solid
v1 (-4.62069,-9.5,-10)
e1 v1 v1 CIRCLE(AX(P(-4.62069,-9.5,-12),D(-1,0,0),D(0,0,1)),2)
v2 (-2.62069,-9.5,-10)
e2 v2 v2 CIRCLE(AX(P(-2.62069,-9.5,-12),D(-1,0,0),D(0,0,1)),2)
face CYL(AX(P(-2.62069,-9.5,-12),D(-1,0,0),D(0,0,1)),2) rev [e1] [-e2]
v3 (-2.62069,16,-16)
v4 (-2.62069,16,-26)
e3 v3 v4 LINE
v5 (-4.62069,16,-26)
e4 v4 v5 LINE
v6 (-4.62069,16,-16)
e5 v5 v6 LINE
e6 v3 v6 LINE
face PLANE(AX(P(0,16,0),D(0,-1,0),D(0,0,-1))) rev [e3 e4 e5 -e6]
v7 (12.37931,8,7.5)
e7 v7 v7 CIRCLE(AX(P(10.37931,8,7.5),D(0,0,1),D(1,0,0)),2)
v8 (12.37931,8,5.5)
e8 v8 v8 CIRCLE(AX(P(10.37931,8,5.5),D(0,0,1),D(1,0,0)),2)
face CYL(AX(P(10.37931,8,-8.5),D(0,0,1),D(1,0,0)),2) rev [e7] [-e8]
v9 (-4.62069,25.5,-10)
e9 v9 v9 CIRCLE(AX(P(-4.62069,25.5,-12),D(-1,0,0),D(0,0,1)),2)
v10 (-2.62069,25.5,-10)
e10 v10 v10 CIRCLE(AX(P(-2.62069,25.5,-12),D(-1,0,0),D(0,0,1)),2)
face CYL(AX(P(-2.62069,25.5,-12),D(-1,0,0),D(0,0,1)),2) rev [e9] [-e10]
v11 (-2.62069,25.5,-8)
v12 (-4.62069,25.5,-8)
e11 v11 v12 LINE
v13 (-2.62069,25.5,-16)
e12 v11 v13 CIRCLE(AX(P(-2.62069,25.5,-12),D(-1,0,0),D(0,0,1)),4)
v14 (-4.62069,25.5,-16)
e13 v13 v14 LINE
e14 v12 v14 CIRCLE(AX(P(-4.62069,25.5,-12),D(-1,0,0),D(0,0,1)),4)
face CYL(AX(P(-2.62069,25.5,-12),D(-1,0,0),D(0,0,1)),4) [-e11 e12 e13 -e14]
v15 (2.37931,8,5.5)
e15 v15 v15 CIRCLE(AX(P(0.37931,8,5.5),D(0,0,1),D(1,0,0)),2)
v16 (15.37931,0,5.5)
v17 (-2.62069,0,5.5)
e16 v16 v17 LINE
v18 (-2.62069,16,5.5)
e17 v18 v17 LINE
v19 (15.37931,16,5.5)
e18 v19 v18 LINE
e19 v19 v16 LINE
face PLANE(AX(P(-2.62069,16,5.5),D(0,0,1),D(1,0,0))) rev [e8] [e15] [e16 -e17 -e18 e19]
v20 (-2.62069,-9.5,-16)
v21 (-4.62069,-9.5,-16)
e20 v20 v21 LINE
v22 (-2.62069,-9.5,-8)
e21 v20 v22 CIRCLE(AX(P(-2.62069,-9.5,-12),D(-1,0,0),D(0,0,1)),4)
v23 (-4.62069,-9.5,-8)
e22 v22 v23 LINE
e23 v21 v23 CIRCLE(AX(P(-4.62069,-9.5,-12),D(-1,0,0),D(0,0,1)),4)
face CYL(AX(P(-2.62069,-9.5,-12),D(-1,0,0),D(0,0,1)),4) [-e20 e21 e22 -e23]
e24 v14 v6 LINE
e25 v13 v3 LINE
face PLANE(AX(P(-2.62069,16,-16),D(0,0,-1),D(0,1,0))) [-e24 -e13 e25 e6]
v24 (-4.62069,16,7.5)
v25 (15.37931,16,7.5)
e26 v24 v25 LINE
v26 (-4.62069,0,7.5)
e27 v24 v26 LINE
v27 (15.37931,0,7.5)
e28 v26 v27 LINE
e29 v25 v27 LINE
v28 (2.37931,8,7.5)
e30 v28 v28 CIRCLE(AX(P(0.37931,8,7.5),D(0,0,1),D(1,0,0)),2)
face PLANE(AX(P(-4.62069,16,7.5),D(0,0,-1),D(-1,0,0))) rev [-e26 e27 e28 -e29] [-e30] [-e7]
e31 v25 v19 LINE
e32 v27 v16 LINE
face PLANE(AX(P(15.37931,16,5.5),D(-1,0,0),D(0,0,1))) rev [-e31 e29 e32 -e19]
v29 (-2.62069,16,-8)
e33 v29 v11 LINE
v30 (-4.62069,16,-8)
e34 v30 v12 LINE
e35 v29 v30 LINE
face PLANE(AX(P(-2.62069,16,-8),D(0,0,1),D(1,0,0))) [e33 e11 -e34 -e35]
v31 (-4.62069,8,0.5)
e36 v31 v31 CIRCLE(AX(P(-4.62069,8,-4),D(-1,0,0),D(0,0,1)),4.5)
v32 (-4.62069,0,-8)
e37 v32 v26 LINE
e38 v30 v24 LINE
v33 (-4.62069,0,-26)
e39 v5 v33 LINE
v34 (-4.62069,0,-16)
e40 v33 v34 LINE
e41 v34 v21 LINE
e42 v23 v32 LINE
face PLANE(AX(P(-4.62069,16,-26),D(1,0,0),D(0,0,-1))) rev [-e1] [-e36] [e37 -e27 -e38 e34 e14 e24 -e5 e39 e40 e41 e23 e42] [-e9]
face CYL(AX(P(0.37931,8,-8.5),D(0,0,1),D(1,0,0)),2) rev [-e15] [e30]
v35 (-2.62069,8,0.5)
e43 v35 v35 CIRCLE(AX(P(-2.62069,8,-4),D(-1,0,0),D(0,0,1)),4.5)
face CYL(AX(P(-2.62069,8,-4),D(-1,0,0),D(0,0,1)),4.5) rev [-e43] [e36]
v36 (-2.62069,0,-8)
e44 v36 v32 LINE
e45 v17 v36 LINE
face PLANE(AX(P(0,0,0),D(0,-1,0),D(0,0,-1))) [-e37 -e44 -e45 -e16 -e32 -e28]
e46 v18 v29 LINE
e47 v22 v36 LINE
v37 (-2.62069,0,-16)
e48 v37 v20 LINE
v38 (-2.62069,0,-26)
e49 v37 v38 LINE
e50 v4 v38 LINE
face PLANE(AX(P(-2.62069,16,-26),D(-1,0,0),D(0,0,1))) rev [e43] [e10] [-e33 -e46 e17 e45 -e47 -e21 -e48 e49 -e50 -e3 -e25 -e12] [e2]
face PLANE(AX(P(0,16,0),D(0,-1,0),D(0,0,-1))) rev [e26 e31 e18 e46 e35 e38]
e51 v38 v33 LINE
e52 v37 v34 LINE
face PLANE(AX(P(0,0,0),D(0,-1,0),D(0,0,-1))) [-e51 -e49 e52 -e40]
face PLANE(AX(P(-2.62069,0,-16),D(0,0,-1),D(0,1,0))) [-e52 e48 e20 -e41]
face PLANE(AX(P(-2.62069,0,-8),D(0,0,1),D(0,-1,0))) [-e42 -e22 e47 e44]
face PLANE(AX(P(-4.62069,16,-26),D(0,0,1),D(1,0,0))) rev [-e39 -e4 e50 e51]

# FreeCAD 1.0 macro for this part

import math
import FreeCAD as App
import Part
import Sketcher

V = App.Vector

doc = App.newDocument("Part")
body = doc.addObject("PartDesign::Body", "Body")

sketch1 = body.newObject("Sketcher::SketchObject", "Sketch")
sketch1.AttachmentSupport = (doc.getObject("XZ_Plane"), [""])
sketch1.MapMode = "FlatFace"
sketch1.addGeometry(Part.LineSegment(V(-4.62069, -26, 0), V(-4.62069, 7.5, 0)), False)
sketch1.addGeometry(Part.LineSegment(V(-4.62069, 7.5, 0), V(15.37931, 7.5, 0)), False)
sketch1.addGeometry(Part.LineSegment(V(15.37931, 7.5, 0), V(15.37931, 5.5, 0)), False)
sketch1.addGeometry(Part.LineSegment(V(15.37931, 5.5, 0), V(-2.62069, 5.5, 0)), False)
sketch1.addGeometry(Part.LineSegment(V(-2.62069, 5.5, 0), V(-2.62069, -26, 0)), False)
sketch1.addGeometry(Part.LineSegment(V(-2.62069, -26, 0), V(-4.62069, -26, 0)), False)
sketch1.addConstraint(Sketcher.Constraint("Coincident", 0, 2, 1, 1))
sketch1.addConstraint(Sketcher.Constraint("Coincident", 1, 2, 2, 1))
sketch1.addConstraint(Sketcher.Constraint("Coincident", 2, 2, 3, 1))
sketch1.addConstraint(Sketcher.Constraint("Coincident", 3, 2, 4, 1))
sketch1.addConstraint(Sketcher.Constraint("Coincident", 4, 2, 5, 1))
sketch1.addConstraint(Sketcher.Constraint("Coincident", 5, 2, 0, 1))
sketch1.addConstraint(Sketcher.Constraint("Vertical", 0))
sketch1.addConstraint(Sketcher.Constraint("Horizontal", 1))
sketch1.addConstraint(Sketcher.Constraint("Vertical", 2))
sketch1.addConstraint(Sketcher.Constraint("Horizontal", 3))
sketch1.addConstraint(Sketcher.Constraint("Vertical", 4))
sketch1.addConstraint(Sketcher.Constraint("Horizontal", 5))
sketch1.addConstraint(Sketcher.Constraint("Equal", 5, 2))
sketch1.addConstraint(Sketcher.Constraint("DistanceX", 1, 1, 1, 2, 20.0))
sketch1.addConstraint(Sketcher.Constraint("DistanceX", 3, 2, 3, 1, 18.0))
sketch1.addConstraint(Sketcher.Constraint("DistanceY", 0, 1, 0, 2, 33.5))
sketch1.addConstraint(Sketcher.Constraint("DistanceY", 4, 2, -1, 1, 26.0))
sketch1.addConstraint(Sketcher.Constraint("DistanceX", 0, 2, -1, 1, 4.62069))
pad1 = body.newObject("PartDesign::Pad", "Pad")
pad1.Profile = sketch1
pad1.Length = 16
pad1.Reversed = True

sketch2 = body.newObject("Sketcher::SketchObject", "Sketch001")
sketch2.AttachmentSupport = (doc.getObject("XY_Plane"), [""])
sketch2.MapMode = "FlatFace"
sketch2.AttachmentOffset = App.Placement(V(0, 0, 7.5), App.Rotation())
sketch2.addGeometry(Part.Circle(V(0.37931, 8, 0), V(0, 0, 1), 2), False)
sketch2.addGeometry(Part.Circle(V(10.37931, 8, 0), V(0, 0, 1), 2), False)
sketch2.addConstraint(Sketcher.Constraint("Equal", 0, 1))
sketch2.addConstraint(Sketcher.Constraint("Horizontal", 0, 3, 1, 3))
sketch2.addConstraint(Sketcher.Constraint("Diameter", 0, 4.0))
sketch2.addConstraint(Sketcher.Constraint("DistanceY", -1, 1, 0, 3, 8.0))
sketch2.addConstraint(Sketcher.Constraint("DistanceX", 0, 3, 1, 3, 10.0))
sketch2.addConstraint(Sketcher.Constraint("DistanceX", -1, 1, 0, 3, 0.37931))
pocket1 = body.newObject("PartDesign::Pocket", "Pocket")
pocket1.Profile = sketch2
pocket1.Length = 16

sketch3 = body.newObject("Sketcher::SketchObject", "Sketch002")
sketch3.AttachmentSupport = (doc.getObject("YZ_Plane"), [""])
sketch3.MapMode = "FlatFace"
sketch3.AttachmentOffset = App.Placement(V(0, 0, -4.62069), App.Rotation())
sketch3.addGeometry(Part.LineSegment(V(16, -16, 0), V(16, -8, 0)), False)
sketch3.addGeometry(Part.LineSegment(V(16, -8, 0), V(25.5, -8, 0)), False)
sketch3.addGeometry(Part.ArcOfCircle(Part.Circle(V(25.5, -12, 0), V(0, 0, 1), 4), math.radians(-90), math.radians(90)), False)
sketch3.addGeometry(Part.LineSegment(V(25.5, -16, 0), V(16, -16, 0)), False)
sketch3.addGeometry(Part.Circle(V(25.5, -12, 0), V(0, 0, 1), 2), False)
sketch3.addGeometry(Part.LineSegment(V(0, -8, 0), V(0, -16, 0)), False)
sketch3.addGeometry(Part.LineSegment(V(0, -16, 0), V(-9.5, -16, 0)), False)
sketch3.addGeometry(Part.ArcOfCircle(Part.Circle(V(-9.5, -12, 0), V(0, 0, 1), 4), math.radians(90), math.radians(270)), False)
sketch3.addGeometry(Part.LineSegment(V(-9.5, -8, 0), V(0, -8, 0)), False)
sketch3.addGeometry(Part.Circle(V(-9.5, -12, 0), V(0, 0, 1), 2), False)
sketch3.addConstraint(Sketcher.Constraint("Coincident", 0, 2, 1, 1))
sketch3.addConstraint(Sketcher.Constraint("Tangent", 1, 2, 2, 2))
sketch3.addConstraint(Sketcher.Constraint("Tangent", 2, 1, 3, 1))
sketch3.addConstraint(Sketcher.Constraint("Coincident", 3, 2, 0, 1))
sketch3.addConstraint(Sketcher.Constraint("Coincident", 5, 2, 6, 1))
sketch3.addConstraint(Sketcher.Constraint("Tangent", 6, 2, 7, 2))
sketch3.addConstraint(Sketcher.Constraint("Tangent", 7, 1, 8, 1))
sketch3.addConstraint(Sketcher.Constraint("Coincident", 8, 2, 5, 1))
sketch3.addConstraint(Sketcher.Constraint("Vertical", 0))
sketch3.addConstraint(Sketcher.Constraint("Horizontal", 1))
sketch3.addConstraint(Sketcher.Constraint("Horizontal", 3))
sketch3.addConstraint(Sketcher.Constraint("Vertical", 5))
sketch3.addConstraint(Sketcher.Constraint("Horizontal", 6))
sketch3.addConstraint(Sketcher.Constraint("Horizontal", 8))
sketch3.addConstraint(Sketcher.Constraint("Coincident", 4, 3, 2, 3))
sketch3.addConstraint(Sketcher.Constraint("Coincident", 9, 3, 7, 3))
sketch3.addConstraint(Sketcher.Constraint("Equal", 2, 7))
sketch3.addConstraint(Sketcher.Constraint("Equal", 4, 9))
sketch3.addConstraint(Sketcher.Constraint("PointOnObject", 5, 2, -2))
sketch3.addConstraint(Sketcher.Constraint("Horizontal", 4, 3, 7, 3))
sketch3.addConstraint(Sketcher.Constraint("Equal", 3, 6))
sketch3.addConstraint(Sketcher.Constraint("Diameter", 4, 4.0))
sketch3.addConstraint(Sketcher.Constraint("Radius", 2, 4.0))
sketch3.addConstraint(Sketcher.Constraint("DistanceX", 1, 1, 1, 2, 9.5))
sketch3.addConstraint(Sketcher.Constraint("DistanceY", 2, 3, -1, 1, 12.0))
sketch3.addConstraint(Sketcher.Constraint("DistanceX", -1, 1, 0, 2, 16.0))
pad2 = body.newObject("PartDesign::Pad", "Pad001")
pad2.Profile = sketch3
pad2.Length = 2

sketch4 = body.newObject("Sketcher::SketchObject", "Sketch003")
sketch4.AttachmentSupport = (doc.getObject("YZ_Plane"), [""])
sketch4.MapMode = "FlatFace"
sketch4.AttachmentOffset = App.Placement(V(0, 0, -4.62069), App.Rotation())
sketch4.addGeometry(Part.Circle(V(8, -4, 0), V(0, 0, 1), 4.5), False)
sketch4.addConstraint(Sketcher.Constraint("Diameter", 0, 9.0))
sketch4.addConstraint(Sketcher.Constraint("DistanceX", -1, 1, 0, 3, 8.0))
sketch4.addConstraint(Sketcher.Constraint("DistanceY", 0, 3, -1, 1, 4.0))
pocket2 = body.newObject("PartDesign::Pocket", "Pocket001")
pocket2.Profile = sketch4
pocket2.Length = 2
pocket2.Reversed = True

doc.recompute()
